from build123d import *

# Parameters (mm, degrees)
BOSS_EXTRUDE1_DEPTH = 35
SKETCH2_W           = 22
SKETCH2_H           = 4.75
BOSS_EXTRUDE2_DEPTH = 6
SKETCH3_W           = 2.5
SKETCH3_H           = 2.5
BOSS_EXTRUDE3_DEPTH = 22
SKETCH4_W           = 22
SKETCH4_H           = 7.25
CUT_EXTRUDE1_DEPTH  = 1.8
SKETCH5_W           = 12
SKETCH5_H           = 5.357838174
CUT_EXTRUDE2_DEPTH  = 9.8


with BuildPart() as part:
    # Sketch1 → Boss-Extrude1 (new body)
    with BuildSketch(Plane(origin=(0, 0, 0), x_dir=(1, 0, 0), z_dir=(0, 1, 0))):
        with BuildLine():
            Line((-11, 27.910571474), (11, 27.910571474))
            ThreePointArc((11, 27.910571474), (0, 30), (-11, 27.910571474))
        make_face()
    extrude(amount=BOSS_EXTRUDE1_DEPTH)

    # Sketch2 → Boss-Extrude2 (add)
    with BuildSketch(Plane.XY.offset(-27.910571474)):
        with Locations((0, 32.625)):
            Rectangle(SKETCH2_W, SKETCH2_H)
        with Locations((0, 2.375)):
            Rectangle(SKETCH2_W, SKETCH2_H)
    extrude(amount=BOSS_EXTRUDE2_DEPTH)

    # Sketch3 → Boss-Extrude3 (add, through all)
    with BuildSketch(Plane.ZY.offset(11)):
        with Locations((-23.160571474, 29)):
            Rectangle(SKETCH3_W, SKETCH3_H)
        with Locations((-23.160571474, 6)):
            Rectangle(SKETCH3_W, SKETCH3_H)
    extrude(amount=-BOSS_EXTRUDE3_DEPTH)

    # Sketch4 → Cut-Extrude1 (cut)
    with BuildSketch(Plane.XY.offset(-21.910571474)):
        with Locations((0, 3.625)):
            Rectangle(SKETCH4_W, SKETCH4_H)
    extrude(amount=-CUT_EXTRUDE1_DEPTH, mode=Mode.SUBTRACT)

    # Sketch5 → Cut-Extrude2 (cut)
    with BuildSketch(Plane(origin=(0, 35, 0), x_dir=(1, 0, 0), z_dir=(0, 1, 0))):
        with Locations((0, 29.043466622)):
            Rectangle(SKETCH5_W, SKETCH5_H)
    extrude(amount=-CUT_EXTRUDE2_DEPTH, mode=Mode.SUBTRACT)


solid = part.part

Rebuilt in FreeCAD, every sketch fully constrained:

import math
import FreeCAD as App
import Part
import Sketcher

V = App.Vector


def add_polygon(sketch, points):
    """Adds a closed chain of lines whose ends are joined by coincident constraints."""
    first, n = sketch.GeometryCount, len(points)
    for a, b in zip(points, points[1:] + points[:1]):
        sketch.addGeometry(Part.LineSegment(App.Vector(*a, 0), App.Vector(*b, 0)), False)
    for i in range(n):
        sketch.addConstraint(Sketcher.Constraint("Coincident", first + i, 2, first + (i + 1) % n, 1))

doc = App.newDocument("Part")
body = doc.addObject("PartDesign::Body", "Body")

# Sketch on XZ plane
sketch1 = body.newObject("Sketcher::SketchObject", "Sketch")
sketch1.AttachmentSupport = (doc.getObject("XZ_Plane"), [""])
sketch1.MapMode = "FlatFace"
sketch1.addGeometry([
    Part.LineSegment(V(-11, -28, 0), V(11, -28, 0)),
    Part.ArcOfCircle(Part.Circle(V(0, 0, 0), V(0, 0, 1), 30), math.radians(-112), math.radians(-68)),
], False)
sketch1.addConstraint([
    Sketcher.Constraint("Coincident", 0, 1, 1, 1),
    Sketcher.Constraint("Coincident", 1, 2, 0, 2),
    Sketcher.Constraint("Horizontal", 0),
    Sketcher.Constraint("Coincident", 1, 3, -1, 1),
    Sketcher.Constraint("Radius", 1, 30.0),
    Sketcher.Constraint("DistanceX", 0, 1, 0, 2, 22.0),
])
pad1 = body.newObject("PartDesign::Pad", "Pad")
pad1.Profile = sketch1
pad1.Length = 35
pad1.Reversed = True

# Sketch on XY plane
sketch2 = body.newObject("Sketcher::SketchObject", "Sketch001")
sketch2.AttachmentSupport = (doc.getObject("XY_Plane"), [""])
sketch2.MapMode = "FlatFace"
sketch2.AttachmentOffset = App.Placement(V(0, 0, -27.910571), App.Rotation())
add_polygon(sketch2, [(-11, 35), (-11, 30.2), (11, 30.2), (11, 35)])  # lines 0-3
add_polygon(sketch2, [(-11, 4.8), (-11, 0), (11, 0), (11, 4.8)])  # lines 4-7
sketch2.addConstraint([
    Sketcher.Constraint("Vertical", 0),
    Sketcher.Constraint("Horizontal", 1),
    Sketcher.Constraint("Vertical", 2),
    Sketcher.Constraint("Horizontal", 3),
    Sketcher.Constraint("Vertical", 4),
    Sketcher.Constraint("Horizontal", 5),
    Sketcher.Constraint("Vertical", 6),
    Sketcher.Constraint("Horizontal", 7),
    Sketcher.Constraint("Symmetric", 4, 2, 5, 2, -1, 1),
    Sketcher.Constraint("Vertical", 3, 2, 4, 2),
    Sketcher.Constraint("Vertical", 2, 2, 5, 2),
    Sketcher.Constraint("Equal", 2, 4),
    Sketcher.Constraint("DistanceX", 1, 1, 1, 2, 22.0),
    Sketcher.Constraint("DistanceY", -1, 1, 2, 2, 35.0),
    Sketcher.Constraint("DistanceY", 0, 2, 0, 1, 4.75),
])
pad2 = body.newObject("PartDesign::Pad", "Pad001")
pad2.Profile = sketch2
pad2.Length = 6

# Sketch on YZ plane
sketch3 = body.newObject("Sketcher::SketchObject", "Sketch002")
sketch3.AttachmentSupport = (doc.getObject("YZ_Plane"), [""])
sketch3.MapMode = "FlatFace"
sketch3.AttachmentOffset = App.Placement(V(0, 0, -11), App.Rotation())
add_polygon(sketch3, [(30.2, -24.4), (27.8, -24.4), (27.8, -21.9), (30.2, -21.9)])  # lines 0-3
add_polygon(sketch3, [(7.2, -24.4), (4.8, -24.4), (4.8, -21.9), (7.2, -21.9)])  # lines 4-7
sketch3.addConstraint([
    Sketcher.Constraint("Horizontal", 0),
    Sketcher.Constraint("Vertical", 1),
    Sketcher.Constraint("Horizontal", 2),
    Sketcher.Constraint("Vertical", 3),
    Sketcher.Constraint("Horizontal", 4),
    Sketcher.Constraint("Vertical", 5),
    Sketcher.Constraint("Horizontal", 6),
    Sketcher.Constraint("Vertical", 7),
    Sketcher.Constraint("Horizontal", 3, 2, 4, 2),
    Sketcher.Constraint("Horizontal", 2, 2, 5, 2),
    Sketcher.Constraint("Equal", 2, 4),
    Sketcher.Constraint("Equal", 6, 1),
    Sketcher.Constraint("DistanceX", 0, 2, 0, 1, 2.5),
    Sketcher.Constraint("DistanceX", 4, 2, 0, 2, 23.0),
    Sketcher.Constraint("DistanceX", -1, 1, 0, 2, 27.75),
    Sketcher.Constraint("DistanceY", 0, 2, -1, 1, 24.410571),
])
pad3 = body.newObject("PartDesign::Pad", "Pad002")
pad3.Profile = sketch3
pad3.Length = 22

# Sketch on XY plane
sketch4 = body.newObject("Sketcher::SketchObject", "Sketch003")
sketch4.AttachmentSupport = (doc.getObject("XY_Plane"), [""])
sketch4.MapMode = "FlatFace"
sketch4.AttachmentOffset = App.Placement(V(0, 0, -21.910571), App.Rotation())
add_polygon(sketch4, [(-11, 7), (-11, 0), (11, 0), (11, 7)])  # lines 0-3
sketch4.addConstraint([
    Sketcher.Constraint("Vertical", 0),
    Sketcher.Constraint("Horizontal", 1),
    Sketcher.Constraint("Vertical", 2),
    Sketcher.Constraint("Horizontal", 3),
    Sketcher.Constraint("Symmetric", 0, 2, 1, 2, -1, 1),
    Sketcher.Constraint("DistanceX", 1, 1, 1, 2, 22.0),
    Sketcher.Constraint("DistanceY", 0, 2, 0, 1, 7.25),
])
pocket1 = body.newObject("PartDesign::Pocket", "Pocket")
pocket1.Profile = sketch4
pocket1.Length = 1.8

# Sketch on XZ plane
sketch5 = body.newObject("Sketcher::SketchObject", "Sketch004")
sketch5.AttachmentSupport = (doc.getObject("XZ_Plane"), [""])
sketch5.MapMode = "FlatFace"
sketch5.AttachmentOffset = App.Placement(V(0, 0, -35), App.Rotation())
add_polygon(sketch5, [(-6, -32), (-6, -26), (6, -26), (6, -32)])  # lines 0-3
sketch5.addConstraint([
    Sketcher.Constraint("Vertical", 0),
    Sketcher.Constraint("Horizontal", 1),
    Sketcher.Constraint("Vertical", 2),
    Sketcher.Constraint("Horizontal", 3),
    Sketcher.Constraint("DistanceX", 1, 1, 1, 2, 12.0),
    Sketcher.Constraint("DistanceX", 0, 2, -1, 1, 6.0),
    Sketcher.Constraint("DistanceY", 0, 1, 0, 2, 5.357838),
    Sketcher.Constraint("DistanceY", 0, 2, -1, 1, 26.364548),
])
pocket2 = body.newObject("PartDesign::Pocket", "Pocket001")
pocket2.Profile = sketch5
pocket2.Length = 9.8
pocket2.Reversed = True

doc.recompute()
